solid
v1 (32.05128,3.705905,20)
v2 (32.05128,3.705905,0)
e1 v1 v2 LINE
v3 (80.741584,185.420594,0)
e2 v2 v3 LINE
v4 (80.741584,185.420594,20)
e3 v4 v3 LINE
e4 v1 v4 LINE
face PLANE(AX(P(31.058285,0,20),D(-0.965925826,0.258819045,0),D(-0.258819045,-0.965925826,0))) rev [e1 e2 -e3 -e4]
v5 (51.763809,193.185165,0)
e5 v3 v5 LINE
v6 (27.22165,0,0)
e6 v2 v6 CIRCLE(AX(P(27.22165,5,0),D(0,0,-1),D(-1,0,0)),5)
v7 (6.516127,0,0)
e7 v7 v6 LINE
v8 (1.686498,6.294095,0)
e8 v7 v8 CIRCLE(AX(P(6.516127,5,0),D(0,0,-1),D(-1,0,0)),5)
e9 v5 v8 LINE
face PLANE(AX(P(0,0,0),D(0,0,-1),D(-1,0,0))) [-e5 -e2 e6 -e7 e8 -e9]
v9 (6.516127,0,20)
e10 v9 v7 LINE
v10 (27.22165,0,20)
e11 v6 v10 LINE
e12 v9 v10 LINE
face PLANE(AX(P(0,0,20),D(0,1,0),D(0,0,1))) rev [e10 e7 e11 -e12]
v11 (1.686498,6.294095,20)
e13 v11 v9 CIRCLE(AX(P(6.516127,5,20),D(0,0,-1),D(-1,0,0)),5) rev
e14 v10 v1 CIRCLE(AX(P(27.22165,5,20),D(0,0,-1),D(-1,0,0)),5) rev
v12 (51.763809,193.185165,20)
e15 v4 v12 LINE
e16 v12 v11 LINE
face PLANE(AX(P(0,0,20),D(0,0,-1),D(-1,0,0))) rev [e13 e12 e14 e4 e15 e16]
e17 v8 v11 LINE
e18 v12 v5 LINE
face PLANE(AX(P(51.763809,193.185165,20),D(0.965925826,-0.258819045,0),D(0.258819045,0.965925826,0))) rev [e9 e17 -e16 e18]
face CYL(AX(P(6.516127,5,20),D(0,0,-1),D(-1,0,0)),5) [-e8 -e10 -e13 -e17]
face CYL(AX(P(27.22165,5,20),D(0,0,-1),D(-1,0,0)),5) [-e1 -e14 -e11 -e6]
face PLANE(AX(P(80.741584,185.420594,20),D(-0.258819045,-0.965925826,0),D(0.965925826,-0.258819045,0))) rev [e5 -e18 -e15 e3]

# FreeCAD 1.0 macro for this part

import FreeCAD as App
import Part
import Sketcher
from FreeCAD import Vector
Q = App.Units.Quantity


def edges_at(feature, points):
    """Names of the edges that pass closest to the given points."""
    edges = feature.Shape.Edges
    near = lambda p: min(range(len(edges)), key=lambda i: edges[i].distToShape(Part.Vertex(*p))[0])
    return sorted({f"Edge{near(p) + 1}" for p in points})


def add_polygon(sketch, points):
    """Adds a closed chain of lines whose ends are joined by coincident constraints."""
    first, n = sketch.GeometryCount, len(points)
    for a, b in zip(points, points[1:] + points[:1]):
        sketch.addGeometry(Part.LineSegment(App.Vector(*a, 0), App.Vector(*b, 0)), False)
    for i in range(n):
        sketch.addConstraint(Sketcher.Constraint("Coincident", first + i, 2, first + (i + 1) % n, 1))

doc = App.newDocument("Part")
body = doc.addObject("PartDesign::Body", "Body")

# Sketch on XY plane
sketch1 = body.newObject("Sketcher::SketchObject", "Sketch")
sketch1.AttachmentSupport = (doc.getObject("XY_Plane"), [""])
sketch1.MapMode = "FlatFace"
add_polygon(sketch1, [(0, 0), (31, 0), (81, 185), (52, 193)])  # lines 0-3
sketch1.addConstraint(Sketcher.Constraint("Horizontal", 0))
sketch1.addConstraint(Sketcher.Constraint("Coincident", 3, 2, -1, 1))
sketch1.addConstraint(Sketcher.Constraint("Perpendicular", 1, 2))
sketch1.addConstraint(Sketcher.Constraint("Perpendicular", 2, 3))
sketch1.addConstraint(Sketcher.Constraint("Angle", 1, Q("75 deg")))
sketch1.addConstraint(Sketcher.Constraint("Distance", 2, Q("30 mm")))
sketch1.addConstraint(Sketcher.Constraint("Distance", 3, Q("200 mm")))
pad1 = body.newObject("PartDesign::Pad", "Pad")
pad1.Profile = sketch1
pad1.Length = 20
doc.recompute()

fillet = body.newObject("PartDesign::Fillet", "Fillet")
fillet.Base = (pad1, edges_at(pad1, [(31.058, 0, 10), (0, 0, 10)]))
fillet.Radius = 5

doc.recompute()
